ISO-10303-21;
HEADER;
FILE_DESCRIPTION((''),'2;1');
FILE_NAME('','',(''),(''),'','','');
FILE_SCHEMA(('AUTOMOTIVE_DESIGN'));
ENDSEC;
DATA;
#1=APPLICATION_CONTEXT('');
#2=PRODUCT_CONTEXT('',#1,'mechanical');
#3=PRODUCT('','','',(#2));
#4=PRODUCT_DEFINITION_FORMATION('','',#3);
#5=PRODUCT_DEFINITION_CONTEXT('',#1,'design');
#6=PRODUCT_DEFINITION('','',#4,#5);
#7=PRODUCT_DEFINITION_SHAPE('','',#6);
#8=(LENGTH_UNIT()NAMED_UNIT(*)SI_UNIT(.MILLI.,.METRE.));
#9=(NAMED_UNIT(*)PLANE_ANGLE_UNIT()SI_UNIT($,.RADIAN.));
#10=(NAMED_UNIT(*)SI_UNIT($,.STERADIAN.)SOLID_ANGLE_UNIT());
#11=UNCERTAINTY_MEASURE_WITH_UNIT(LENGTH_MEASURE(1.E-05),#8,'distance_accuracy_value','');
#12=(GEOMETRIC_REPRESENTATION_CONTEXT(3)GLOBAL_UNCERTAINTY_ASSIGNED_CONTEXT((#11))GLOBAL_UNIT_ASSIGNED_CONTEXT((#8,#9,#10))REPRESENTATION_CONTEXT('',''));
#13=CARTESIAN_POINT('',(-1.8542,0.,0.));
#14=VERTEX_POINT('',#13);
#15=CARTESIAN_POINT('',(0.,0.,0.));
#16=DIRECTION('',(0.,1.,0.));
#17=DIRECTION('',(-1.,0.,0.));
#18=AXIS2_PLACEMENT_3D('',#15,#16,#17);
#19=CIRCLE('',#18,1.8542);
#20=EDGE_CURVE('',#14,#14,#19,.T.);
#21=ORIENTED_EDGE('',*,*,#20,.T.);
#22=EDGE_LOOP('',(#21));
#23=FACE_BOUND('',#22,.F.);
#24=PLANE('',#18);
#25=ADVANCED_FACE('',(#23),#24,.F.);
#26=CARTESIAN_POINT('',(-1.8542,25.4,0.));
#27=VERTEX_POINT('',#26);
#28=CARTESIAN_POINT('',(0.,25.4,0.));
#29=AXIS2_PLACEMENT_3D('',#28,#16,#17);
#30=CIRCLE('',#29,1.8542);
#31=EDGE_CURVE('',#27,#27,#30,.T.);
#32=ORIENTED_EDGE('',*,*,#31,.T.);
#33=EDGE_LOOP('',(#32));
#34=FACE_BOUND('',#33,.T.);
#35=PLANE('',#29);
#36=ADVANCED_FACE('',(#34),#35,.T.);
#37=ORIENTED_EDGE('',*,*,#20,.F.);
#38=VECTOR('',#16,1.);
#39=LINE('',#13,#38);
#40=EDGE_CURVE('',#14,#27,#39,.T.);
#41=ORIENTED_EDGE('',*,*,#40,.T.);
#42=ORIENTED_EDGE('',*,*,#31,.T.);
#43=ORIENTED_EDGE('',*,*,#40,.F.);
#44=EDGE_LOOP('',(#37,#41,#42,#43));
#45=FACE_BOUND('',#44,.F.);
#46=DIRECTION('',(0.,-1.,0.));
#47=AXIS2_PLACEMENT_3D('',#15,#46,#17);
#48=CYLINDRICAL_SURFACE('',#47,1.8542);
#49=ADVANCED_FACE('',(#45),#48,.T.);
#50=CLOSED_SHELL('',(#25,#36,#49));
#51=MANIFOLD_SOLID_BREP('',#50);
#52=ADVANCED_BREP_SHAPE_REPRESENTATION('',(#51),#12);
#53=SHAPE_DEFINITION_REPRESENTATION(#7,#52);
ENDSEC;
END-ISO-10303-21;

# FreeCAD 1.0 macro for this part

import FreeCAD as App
import Part
import Sketcher
Q = App.Units.Quantity

doc = App.newDocument("Part")
body = doc.addObject("PartDesign::Body", "Body")

sketch1 = body.newObject("Sketcher::SketchObject", "Sketch")
sketch1.AttachmentSupport = (doc.getObject("XZ_Plane"), [""])
sketch1.MapMode = "FlatFace"
sketch1.addGeometry(Part.Circle(App.Vector(0, 0, 0), App.Vector(0, 0, 1), 1.9), False)
sketch1.addConstraint([
    Sketcher.Constraint("Coincident", 0, 3, -1, 1),
    Sketcher.Constraint("Diameter", 0, Q("0.146 in")),
])
pad1 = body.newObject("PartDesign::Pad", "Pad")
pad1.Profile = sketch1
pad1.Length = Q("1 in")
pad1.Reversed = True

doc.recompute()
